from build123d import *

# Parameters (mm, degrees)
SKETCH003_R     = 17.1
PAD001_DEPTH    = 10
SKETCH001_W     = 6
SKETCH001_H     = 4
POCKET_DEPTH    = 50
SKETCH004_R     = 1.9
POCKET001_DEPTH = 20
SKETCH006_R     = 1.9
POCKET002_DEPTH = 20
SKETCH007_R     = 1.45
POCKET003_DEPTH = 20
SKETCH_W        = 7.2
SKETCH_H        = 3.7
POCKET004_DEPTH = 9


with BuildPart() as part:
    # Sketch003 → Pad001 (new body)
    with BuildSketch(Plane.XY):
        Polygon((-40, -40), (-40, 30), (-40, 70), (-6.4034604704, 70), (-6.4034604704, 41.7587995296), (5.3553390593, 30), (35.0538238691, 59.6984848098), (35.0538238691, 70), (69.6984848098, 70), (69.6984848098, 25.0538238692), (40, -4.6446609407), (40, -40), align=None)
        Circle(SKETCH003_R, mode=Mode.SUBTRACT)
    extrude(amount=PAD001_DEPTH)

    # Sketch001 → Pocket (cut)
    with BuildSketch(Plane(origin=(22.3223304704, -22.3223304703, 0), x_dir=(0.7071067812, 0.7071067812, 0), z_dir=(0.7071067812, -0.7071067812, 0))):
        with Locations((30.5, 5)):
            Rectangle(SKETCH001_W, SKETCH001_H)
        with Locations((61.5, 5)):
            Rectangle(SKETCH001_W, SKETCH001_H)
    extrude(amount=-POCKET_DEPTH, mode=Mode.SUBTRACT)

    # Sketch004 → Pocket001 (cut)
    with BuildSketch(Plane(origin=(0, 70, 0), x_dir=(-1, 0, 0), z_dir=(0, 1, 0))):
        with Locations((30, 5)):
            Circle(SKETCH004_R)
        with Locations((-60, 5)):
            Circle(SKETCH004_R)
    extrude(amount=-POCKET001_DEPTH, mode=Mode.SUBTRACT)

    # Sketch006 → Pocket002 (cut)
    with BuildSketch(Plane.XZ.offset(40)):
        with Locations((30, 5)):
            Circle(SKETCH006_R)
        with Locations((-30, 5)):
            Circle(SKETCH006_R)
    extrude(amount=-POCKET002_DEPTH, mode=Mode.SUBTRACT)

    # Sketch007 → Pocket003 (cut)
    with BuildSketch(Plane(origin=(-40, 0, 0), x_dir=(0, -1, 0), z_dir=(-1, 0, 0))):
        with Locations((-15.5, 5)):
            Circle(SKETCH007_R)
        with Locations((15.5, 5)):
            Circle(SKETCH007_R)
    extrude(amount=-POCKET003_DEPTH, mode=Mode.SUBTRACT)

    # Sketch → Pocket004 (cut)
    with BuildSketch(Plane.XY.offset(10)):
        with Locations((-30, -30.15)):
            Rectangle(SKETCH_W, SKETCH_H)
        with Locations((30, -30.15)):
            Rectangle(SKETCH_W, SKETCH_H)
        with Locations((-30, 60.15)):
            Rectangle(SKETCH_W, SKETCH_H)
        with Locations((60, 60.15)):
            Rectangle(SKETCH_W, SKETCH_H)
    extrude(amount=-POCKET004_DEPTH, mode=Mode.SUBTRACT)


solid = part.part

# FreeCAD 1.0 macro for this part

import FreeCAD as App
import Part
import Sketcher
from FreeCAD import Vector
Q = App.Units.Quantity


def add_polygon(sketch, points):
    """Adds a closed chain of lines whose ends are joined by coincident constraints."""
    first, n = sketch.GeometryCount, len(points)
    for a, b in zip(points, points[1:] + points[:1]):
        sketch.addGeometry(Part.LineSegment(App.Vector(*a, 0), App.Vector(*b, 0)), False)
    for i in range(n):
        sketch.addConstraint(Sketcher.Constraint("Coincident", first + i, 2, first + (i + 1) % n, 1))

doc = App.newDocument("Part")
body = doc.addObject("PartDesign::Body", "Body")

sketch1 = doc.addObject("Sketcher::SketchObject", "Sketch")
body.addObject(sketch1)
sketch1.AttachmentSupport = (doc.XY_Plane, [""])
sketch1.MapMode = "FlatFace"
add_polygon(sketch1, [(-40, 70), (-40, -40), (40, -40), (40, -5), (70, 25), (70, 70), (35, 70), (35, 60), (5, 30), (-6, 42), (-6, 70)])
sketch1.addGeometry(Part.Circle(Vector(0, 0, 0), Vector(0, 0, 1), 17), False)
sketch1.addConstraint(Sketcher.Constraint("Vertical", 0))
sketch1.addConstraint(Sketcher.Constraint("Horizontal", 1))
sketch1.addConstraint(Sketcher.Constraint("Vertical", 2))
sketch1.addConstraint(Sketcher.Constraint("Vertical", 4))
sketch1.addConstraint(Sketcher.Constraint("Horizontal", 5))
sketch1.addConstraint(Sketcher.Constraint("Vertical", 6))
sketch1.addConstraint(Sketcher.Constraint("Vertical", 9))
sketch1.addConstraint(Sketcher.Constraint("Horizontal", 10))
sketch1.addConstraint(Sketcher.Constraint("Coincident", 11, 3, -1, 1))
sketch1.addConstraint(Sketcher.Constraint("Parallel", 3, 7))
sketch1.addConstraint(Sketcher.Constraint("Perpendicular", 7, 8))
sketch1.addConstraint(Sketcher.Constraint("Horizontal", 5, 2, 9, 2))
sketch1.addConstraint(Sketcher.Constraint("Equal", 3, 7))
sketch1.addConstraint(Sketcher.Constraint("Diameter", 11, Q("34.2 mm")))
sketch1.addConstraint(Sketcher.Constraint("DistanceX", 1, 1, 1, 2, Q("80 mm")))
sketch1.addConstraint(Sketcher.Constraint("DistanceY", 0, 2, 0, 1, Q("110 mm")))
sketch1.addConstraint(Sketcher.Constraint("Angle", 3, Q("45 deg")))
sketch1.addConstraint(Sketcher.Constraint("Distance", 3, Q("42 mm")))
sketch1.addConstraint(Sketcher.Constraint("DistanceX", 0, 2, -1, 1, Q("40 mm")))
sketch1.addConstraint(Sketcher.Constraint("DistanceY", 0, 2, -1, 1, Q("40 mm")))
sketch1.addConstraint(Sketcher.Constraint("DistanceY", -1, 1, 7, 2, Q("30 mm")))
sketch1.addConstraint(Sketcher.Constraint("DistanceY", 9, 1, 9, 2, Q("28.2412 mm")))
sketch1.addConstraint(Sketcher.Constraint("DistanceX", 5, 2, 5, 1, Q("34.644661 mm")))
sketch1.addConstraint(Sketcher.Constraint("DistanceY", 2, 1, 2, 2, Q("35.355339 mm")))
pad1 = doc.addObject("PartDesign::Pad", "Pad")
body.addObject(pad1)
pad1.Profile = sketch1
pad1.Length = 10

sketch2 = doc.addObject("Sketcher::SketchObject", "Sketch001")
body.addObject(sketch2)
sketch2.Placement = App.Placement(Vector(22.32233, -22.32233, 0), App.Rotation(Vector(0.707106781, 0.707106781, 0), Vector(0, 0, 0.999999999), Vector(0.707106781, -0.707106781, 0), "ZXY"))
add_polygon(sketch2, [(27.5, 7), (27.5, 3), (33.5, 3), (33.5, 7)])
add_polygon(sketch2, [(58.5, 7), (58.5, 3), (64.5, 3), (64.5, 7)])
sketch2.addConstraint(Sketcher.Constraint("Vertical", 0))
sketch2.addConstraint(Sketcher.Constraint("Horizontal", 1))
sketch2.addConstraint(Sketcher.Constraint("Vertical", 2))
sketch2.addConstraint(Sketcher.Constraint("Horizontal", 3))
sketch2.addConstraint(Sketcher.Constraint("Vertical", 4))
sketch2.addConstraint(Sketcher.Constraint("Horizontal", 5))
sketch2.addConstraint(Sketcher.Constraint("Vertical", 6))
sketch2.addConstraint(Sketcher.Constraint("Horizontal", 7))
sketch2.addConstraint(Sketcher.Constraint("Horizontal", 1, 2, 4, 2))
sketch2.addConstraint(Sketcher.Constraint("Horizontal", 3, 2, 6, 2))
sketch2.addConstraint(Sketcher.Constraint("Equal", 3, 5))
sketch2.addConstraint(Sketcher.Constraint("DistanceX", 1, 1, 1, 2, Q("6 mm")))
sketch2.addConstraint(Sketcher.Constraint("DistanceY", 0, 2, 0, 1, Q("4 mm")))
sketch2.addConstraint(Sketcher.Constraint("DistanceY", -1, 1, 0, 2, Q("3 mm")))
sketch2.addConstraint(Sketcher.Constraint("DistanceX", 1, 2, 4, 2, Q("25 mm")))
sketch2.addConstraint(Sketcher.Constraint("DistanceX", -1, 1, 0, 2, Q("27.5 mm")))
pocket1 = doc.addObject("PartDesign::Pocket", "Pocket")
body.addObject(pocket1)
pocket1.Profile = sketch2
pocket1.Length = 50

sketch3 = doc.addObject("Sketcher::SketchObject", "Sketch002")
body.addObject(sketch3)
sketch3.AttachmentSupport = (doc.XZ_Plane, [""])
sketch3.MapMode = "FlatFace"
sketch3.AttachmentOffset = App.Placement(Vector(0, 0, -70), App.Rotation())
sketch3.addGeometry(Part.Circle(Vector(-30, 5, 0), Vector(0, 0, 1), 1.9), False)
sketch3.addGeometry(Part.Circle(Vector(60, 5, 0), Vector(0, 0, 1), 1.9), False)
sketch3.addConstraint(Sketcher.Constraint("Equal", 0, 1))
sketch3.addConstraint(Sketcher.Constraint("Horizontal", 0, 3, 1, 3))
sketch3.addConstraint(Sketcher.Constraint("Diameter", 0, Q("3.8 mm")))
sketch3.addConstraint(Sketcher.Constraint("DistanceX", 0, 3, -1, 1, Q("30 mm")))
sketch3.addConstraint(Sketcher.Constraint("DistanceY", -1, 1, 0, 3, Q("5 mm")))
sketch3.addConstraint(Sketcher.Constraint("DistanceX", -1, 1, 1, 3, Q("60 mm")))
pocket2 = doc.addObject("PartDesign::Pocket", "Pocket001")
body.addObject(pocket2)
pocket2.Profile = sketch3
pocket2.Length = 20
pocket2.Reversed = True

sketch4 = doc.addObject("Sketcher::SketchObject", "Sketch003")
body.addObject(sketch4)
sketch4.AttachmentSupport = (doc.XZ_Plane, [""])
sketch4.MapMode = "FlatFace"
sketch4.AttachmentOffset = App.Placement(Vector(0, 0, 40), App.Rotation())
sketch4.addGeometry(Part.Circle(Vector(30, 5, 0), Vector(0, 0, 1), 1.9), False)
sketch4.addGeometry(Part.Circle(Vector(-30, 5, 0), Vector(0, 0, 1), 1.9), False)
sketch4.addConstraint(Sketcher.Constraint("Equal", 0, 1))
sketch4.addConstraint(Sketcher.Constraint("Symmetric", 0, 3, 1, 3, -2))
sketch4.addConstraint(Sketcher.Constraint("Diameter", 0, Q("3.8 mm")))
sketch4.addConstraint(Sketcher.Constraint("DistanceX", -1, 1, 0, 3, Q("30 mm")))
sketch4.addConstraint(Sketcher.Constraint("DistanceY", -1, 1, 0, 3, Q("5 mm")))
pocket3 = doc.addObject("PartDesign::Pocket", "Pocket002")
body.addObject(pocket3)
pocket3.Profile = sketch4
pocket3.Length = 20

sketch5 = doc.addObject("Sketcher::SketchObject", "Sketch004")
body.addObject(sketch5)
sketch5.AttachmentSupport = (doc.YZ_Plane, [""])
sketch5.MapMode = "FlatFace"
sketch5.AttachmentOffset = App.Placement(Vector(0, 0, -40), App.Rotation())
sketch5.addGeometry(Part.Circle(Vector(15.5, 5, 0), Vector(0, 0, 1), 1.4), False)
sketch5.addGeometry(Part.Circle(Vector(-15.5, 5, 0), Vector(0, 0, 1), 1.4), False)
sketch5.addConstraint(Sketcher.Constraint("Equal", 0, 1))
sketch5.addConstraint(Sketcher.Constraint("Symmetric", 0, 3, 1, 3, -2))
sketch5.addConstraint(Sketcher.Constraint("Diameter", 0, Q("2.9 mm")))
sketch5.addConstraint(Sketcher.Constraint("DistanceY", -1, 1, 0, 3, Q("5 mm")))
sketch5.addConstraint(Sketcher.Constraint("DistanceX", 1, 3, 0, 3, Q("31 mm")))
pocket4 = doc.addObject("PartDesign::Pocket", "Pocket003")
body.addObject(pocket4)
pocket4.Profile = sketch5
pocket4.Length = 20
pocket4.Reversed = True

sketch6 = doc.addObject("Sketcher::SketchObject", "Sketch005")
body.addObject(sketch6)
sketch6.AttachmentSupport = (doc.XY_Plane, [""])
sketch6.MapMode = "FlatFace"
sketch6.AttachmentOffset = App.Placement(Vector(0, 0, 10), App.Rotation())
add_polygon(sketch6, [(-33.6, -28.3), (-33.6, -32), (-26.4, -32), (-26.4, -28.3)])
add_polygon(sketch6, [(26.4, -28.3), (26.4, -32), (33.6, -32), (33.6, -28.3)])
add_polygon(sketch6, [(-33.6, 62), (-33.6, 58.3), (-26.4, 58.3), (-26.4, 62)])
add_polygon(sketch6, [(56.4, 62), (56.4, 58.3), (63.6, 58.3), (63.6, 62)])
sketch6.addConstraint(Sketcher.Constraint("Vertical", 0))
sketch6.addConstraint(Sketcher.Constraint("Horizontal", 1))
sketch6.addConstraint(Sketcher.Constraint("Vertical", 2))
sketch6.addConstraint(Sketcher.Constraint("Horizontal", 3))
sketch6.addConstraint(Sketcher.Constraint("Vertical", 4))
sketch6.addConstraint(Sketcher.Constraint("Horizontal", 5))
sketch6.addConstraint(Sketcher.Constraint("Vertical", 6))
sketch6.addConstraint(Sketcher.Constraint("Horizontal", 7))
sketch6.addConstraint(Sketcher.Constraint("Vertical", 8))
sketch6.addConstraint(Sketcher.Constraint("Horizontal", 9))
sketch6.addConstraint(Sketcher.Constraint("Vertical", 10))
sketch6.addConstraint(Sketcher.Constraint("Horizontal", 11))
sketch6.addConstraint(Sketcher.Constraint("Vertical", 12))
sketch6.addConstraint(Sketcher.Constraint("Horizontal", 13))
sketch6.addConstraint(Sketcher.Constraint("Vertical", 14))
sketch6.addConstraint(Sketcher.Constraint("Horizontal", 15))
sketch6.addConstraint(Sketcher.Constraint("Symmetric", 1, 2, 4, 2, -2))
sketch6.addConstraint(Sketcher.Constraint("Symmetric", 3, 2, 6, 2, -2))
sketch6.addConstraint(Sketcher.Constraint("Horizontal", 9, 2, 12, 2))
sketch6.addConstraint(Sketcher.Constraint("Horizontal", 11, 2, 14, 2))
sketch6.addConstraint(Sketcher.Constraint("Vertical", 3, 2, 8, 2))
sketch6.addConstraint(Sketcher.Constraint("Vertical", 2, 2, 9, 2))
sketch6.addConstraint(Sketcher.Constraint("Equal", 11, 13))
sketch6.addConstraint(Sketcher.Constraint("Equal", 6, 8))
sketch6.addConstraint(Sketcher.Constraint("DistanceX", 1, 1, 1, 2, Q("7.2 mm")))
sketch6.addConstraint(Sketcher.Constraint("DistanceY", 0, 2, 0, 1, Q("3.7 mm")))
sketch6.addConstraint(Sketcher.Constraint("DistanceY", 0, 2, -1, 1, Q("32 mm")))
sketch6.addConstraint(Sketcher.Constraint("DistanceY", -1, 1, 10, 2, Q("62 mm")))
sketch6.addConstraint(Sketcher.Constraint("DistanceX", 0, 2, 4, 2, Q("60 mm")))
sketch6.addConstraint(Sketcher.Constraint("DistanceX", 8, 2, 12, 2, Q("90 mm")))
pocket5 = doc.addObject("PartDesign::Pocket", "Pocket004")
body.addObject(pocket5)
pocket5.Profile = sketch6
pocket5.Length = 9

doc.recompute()
